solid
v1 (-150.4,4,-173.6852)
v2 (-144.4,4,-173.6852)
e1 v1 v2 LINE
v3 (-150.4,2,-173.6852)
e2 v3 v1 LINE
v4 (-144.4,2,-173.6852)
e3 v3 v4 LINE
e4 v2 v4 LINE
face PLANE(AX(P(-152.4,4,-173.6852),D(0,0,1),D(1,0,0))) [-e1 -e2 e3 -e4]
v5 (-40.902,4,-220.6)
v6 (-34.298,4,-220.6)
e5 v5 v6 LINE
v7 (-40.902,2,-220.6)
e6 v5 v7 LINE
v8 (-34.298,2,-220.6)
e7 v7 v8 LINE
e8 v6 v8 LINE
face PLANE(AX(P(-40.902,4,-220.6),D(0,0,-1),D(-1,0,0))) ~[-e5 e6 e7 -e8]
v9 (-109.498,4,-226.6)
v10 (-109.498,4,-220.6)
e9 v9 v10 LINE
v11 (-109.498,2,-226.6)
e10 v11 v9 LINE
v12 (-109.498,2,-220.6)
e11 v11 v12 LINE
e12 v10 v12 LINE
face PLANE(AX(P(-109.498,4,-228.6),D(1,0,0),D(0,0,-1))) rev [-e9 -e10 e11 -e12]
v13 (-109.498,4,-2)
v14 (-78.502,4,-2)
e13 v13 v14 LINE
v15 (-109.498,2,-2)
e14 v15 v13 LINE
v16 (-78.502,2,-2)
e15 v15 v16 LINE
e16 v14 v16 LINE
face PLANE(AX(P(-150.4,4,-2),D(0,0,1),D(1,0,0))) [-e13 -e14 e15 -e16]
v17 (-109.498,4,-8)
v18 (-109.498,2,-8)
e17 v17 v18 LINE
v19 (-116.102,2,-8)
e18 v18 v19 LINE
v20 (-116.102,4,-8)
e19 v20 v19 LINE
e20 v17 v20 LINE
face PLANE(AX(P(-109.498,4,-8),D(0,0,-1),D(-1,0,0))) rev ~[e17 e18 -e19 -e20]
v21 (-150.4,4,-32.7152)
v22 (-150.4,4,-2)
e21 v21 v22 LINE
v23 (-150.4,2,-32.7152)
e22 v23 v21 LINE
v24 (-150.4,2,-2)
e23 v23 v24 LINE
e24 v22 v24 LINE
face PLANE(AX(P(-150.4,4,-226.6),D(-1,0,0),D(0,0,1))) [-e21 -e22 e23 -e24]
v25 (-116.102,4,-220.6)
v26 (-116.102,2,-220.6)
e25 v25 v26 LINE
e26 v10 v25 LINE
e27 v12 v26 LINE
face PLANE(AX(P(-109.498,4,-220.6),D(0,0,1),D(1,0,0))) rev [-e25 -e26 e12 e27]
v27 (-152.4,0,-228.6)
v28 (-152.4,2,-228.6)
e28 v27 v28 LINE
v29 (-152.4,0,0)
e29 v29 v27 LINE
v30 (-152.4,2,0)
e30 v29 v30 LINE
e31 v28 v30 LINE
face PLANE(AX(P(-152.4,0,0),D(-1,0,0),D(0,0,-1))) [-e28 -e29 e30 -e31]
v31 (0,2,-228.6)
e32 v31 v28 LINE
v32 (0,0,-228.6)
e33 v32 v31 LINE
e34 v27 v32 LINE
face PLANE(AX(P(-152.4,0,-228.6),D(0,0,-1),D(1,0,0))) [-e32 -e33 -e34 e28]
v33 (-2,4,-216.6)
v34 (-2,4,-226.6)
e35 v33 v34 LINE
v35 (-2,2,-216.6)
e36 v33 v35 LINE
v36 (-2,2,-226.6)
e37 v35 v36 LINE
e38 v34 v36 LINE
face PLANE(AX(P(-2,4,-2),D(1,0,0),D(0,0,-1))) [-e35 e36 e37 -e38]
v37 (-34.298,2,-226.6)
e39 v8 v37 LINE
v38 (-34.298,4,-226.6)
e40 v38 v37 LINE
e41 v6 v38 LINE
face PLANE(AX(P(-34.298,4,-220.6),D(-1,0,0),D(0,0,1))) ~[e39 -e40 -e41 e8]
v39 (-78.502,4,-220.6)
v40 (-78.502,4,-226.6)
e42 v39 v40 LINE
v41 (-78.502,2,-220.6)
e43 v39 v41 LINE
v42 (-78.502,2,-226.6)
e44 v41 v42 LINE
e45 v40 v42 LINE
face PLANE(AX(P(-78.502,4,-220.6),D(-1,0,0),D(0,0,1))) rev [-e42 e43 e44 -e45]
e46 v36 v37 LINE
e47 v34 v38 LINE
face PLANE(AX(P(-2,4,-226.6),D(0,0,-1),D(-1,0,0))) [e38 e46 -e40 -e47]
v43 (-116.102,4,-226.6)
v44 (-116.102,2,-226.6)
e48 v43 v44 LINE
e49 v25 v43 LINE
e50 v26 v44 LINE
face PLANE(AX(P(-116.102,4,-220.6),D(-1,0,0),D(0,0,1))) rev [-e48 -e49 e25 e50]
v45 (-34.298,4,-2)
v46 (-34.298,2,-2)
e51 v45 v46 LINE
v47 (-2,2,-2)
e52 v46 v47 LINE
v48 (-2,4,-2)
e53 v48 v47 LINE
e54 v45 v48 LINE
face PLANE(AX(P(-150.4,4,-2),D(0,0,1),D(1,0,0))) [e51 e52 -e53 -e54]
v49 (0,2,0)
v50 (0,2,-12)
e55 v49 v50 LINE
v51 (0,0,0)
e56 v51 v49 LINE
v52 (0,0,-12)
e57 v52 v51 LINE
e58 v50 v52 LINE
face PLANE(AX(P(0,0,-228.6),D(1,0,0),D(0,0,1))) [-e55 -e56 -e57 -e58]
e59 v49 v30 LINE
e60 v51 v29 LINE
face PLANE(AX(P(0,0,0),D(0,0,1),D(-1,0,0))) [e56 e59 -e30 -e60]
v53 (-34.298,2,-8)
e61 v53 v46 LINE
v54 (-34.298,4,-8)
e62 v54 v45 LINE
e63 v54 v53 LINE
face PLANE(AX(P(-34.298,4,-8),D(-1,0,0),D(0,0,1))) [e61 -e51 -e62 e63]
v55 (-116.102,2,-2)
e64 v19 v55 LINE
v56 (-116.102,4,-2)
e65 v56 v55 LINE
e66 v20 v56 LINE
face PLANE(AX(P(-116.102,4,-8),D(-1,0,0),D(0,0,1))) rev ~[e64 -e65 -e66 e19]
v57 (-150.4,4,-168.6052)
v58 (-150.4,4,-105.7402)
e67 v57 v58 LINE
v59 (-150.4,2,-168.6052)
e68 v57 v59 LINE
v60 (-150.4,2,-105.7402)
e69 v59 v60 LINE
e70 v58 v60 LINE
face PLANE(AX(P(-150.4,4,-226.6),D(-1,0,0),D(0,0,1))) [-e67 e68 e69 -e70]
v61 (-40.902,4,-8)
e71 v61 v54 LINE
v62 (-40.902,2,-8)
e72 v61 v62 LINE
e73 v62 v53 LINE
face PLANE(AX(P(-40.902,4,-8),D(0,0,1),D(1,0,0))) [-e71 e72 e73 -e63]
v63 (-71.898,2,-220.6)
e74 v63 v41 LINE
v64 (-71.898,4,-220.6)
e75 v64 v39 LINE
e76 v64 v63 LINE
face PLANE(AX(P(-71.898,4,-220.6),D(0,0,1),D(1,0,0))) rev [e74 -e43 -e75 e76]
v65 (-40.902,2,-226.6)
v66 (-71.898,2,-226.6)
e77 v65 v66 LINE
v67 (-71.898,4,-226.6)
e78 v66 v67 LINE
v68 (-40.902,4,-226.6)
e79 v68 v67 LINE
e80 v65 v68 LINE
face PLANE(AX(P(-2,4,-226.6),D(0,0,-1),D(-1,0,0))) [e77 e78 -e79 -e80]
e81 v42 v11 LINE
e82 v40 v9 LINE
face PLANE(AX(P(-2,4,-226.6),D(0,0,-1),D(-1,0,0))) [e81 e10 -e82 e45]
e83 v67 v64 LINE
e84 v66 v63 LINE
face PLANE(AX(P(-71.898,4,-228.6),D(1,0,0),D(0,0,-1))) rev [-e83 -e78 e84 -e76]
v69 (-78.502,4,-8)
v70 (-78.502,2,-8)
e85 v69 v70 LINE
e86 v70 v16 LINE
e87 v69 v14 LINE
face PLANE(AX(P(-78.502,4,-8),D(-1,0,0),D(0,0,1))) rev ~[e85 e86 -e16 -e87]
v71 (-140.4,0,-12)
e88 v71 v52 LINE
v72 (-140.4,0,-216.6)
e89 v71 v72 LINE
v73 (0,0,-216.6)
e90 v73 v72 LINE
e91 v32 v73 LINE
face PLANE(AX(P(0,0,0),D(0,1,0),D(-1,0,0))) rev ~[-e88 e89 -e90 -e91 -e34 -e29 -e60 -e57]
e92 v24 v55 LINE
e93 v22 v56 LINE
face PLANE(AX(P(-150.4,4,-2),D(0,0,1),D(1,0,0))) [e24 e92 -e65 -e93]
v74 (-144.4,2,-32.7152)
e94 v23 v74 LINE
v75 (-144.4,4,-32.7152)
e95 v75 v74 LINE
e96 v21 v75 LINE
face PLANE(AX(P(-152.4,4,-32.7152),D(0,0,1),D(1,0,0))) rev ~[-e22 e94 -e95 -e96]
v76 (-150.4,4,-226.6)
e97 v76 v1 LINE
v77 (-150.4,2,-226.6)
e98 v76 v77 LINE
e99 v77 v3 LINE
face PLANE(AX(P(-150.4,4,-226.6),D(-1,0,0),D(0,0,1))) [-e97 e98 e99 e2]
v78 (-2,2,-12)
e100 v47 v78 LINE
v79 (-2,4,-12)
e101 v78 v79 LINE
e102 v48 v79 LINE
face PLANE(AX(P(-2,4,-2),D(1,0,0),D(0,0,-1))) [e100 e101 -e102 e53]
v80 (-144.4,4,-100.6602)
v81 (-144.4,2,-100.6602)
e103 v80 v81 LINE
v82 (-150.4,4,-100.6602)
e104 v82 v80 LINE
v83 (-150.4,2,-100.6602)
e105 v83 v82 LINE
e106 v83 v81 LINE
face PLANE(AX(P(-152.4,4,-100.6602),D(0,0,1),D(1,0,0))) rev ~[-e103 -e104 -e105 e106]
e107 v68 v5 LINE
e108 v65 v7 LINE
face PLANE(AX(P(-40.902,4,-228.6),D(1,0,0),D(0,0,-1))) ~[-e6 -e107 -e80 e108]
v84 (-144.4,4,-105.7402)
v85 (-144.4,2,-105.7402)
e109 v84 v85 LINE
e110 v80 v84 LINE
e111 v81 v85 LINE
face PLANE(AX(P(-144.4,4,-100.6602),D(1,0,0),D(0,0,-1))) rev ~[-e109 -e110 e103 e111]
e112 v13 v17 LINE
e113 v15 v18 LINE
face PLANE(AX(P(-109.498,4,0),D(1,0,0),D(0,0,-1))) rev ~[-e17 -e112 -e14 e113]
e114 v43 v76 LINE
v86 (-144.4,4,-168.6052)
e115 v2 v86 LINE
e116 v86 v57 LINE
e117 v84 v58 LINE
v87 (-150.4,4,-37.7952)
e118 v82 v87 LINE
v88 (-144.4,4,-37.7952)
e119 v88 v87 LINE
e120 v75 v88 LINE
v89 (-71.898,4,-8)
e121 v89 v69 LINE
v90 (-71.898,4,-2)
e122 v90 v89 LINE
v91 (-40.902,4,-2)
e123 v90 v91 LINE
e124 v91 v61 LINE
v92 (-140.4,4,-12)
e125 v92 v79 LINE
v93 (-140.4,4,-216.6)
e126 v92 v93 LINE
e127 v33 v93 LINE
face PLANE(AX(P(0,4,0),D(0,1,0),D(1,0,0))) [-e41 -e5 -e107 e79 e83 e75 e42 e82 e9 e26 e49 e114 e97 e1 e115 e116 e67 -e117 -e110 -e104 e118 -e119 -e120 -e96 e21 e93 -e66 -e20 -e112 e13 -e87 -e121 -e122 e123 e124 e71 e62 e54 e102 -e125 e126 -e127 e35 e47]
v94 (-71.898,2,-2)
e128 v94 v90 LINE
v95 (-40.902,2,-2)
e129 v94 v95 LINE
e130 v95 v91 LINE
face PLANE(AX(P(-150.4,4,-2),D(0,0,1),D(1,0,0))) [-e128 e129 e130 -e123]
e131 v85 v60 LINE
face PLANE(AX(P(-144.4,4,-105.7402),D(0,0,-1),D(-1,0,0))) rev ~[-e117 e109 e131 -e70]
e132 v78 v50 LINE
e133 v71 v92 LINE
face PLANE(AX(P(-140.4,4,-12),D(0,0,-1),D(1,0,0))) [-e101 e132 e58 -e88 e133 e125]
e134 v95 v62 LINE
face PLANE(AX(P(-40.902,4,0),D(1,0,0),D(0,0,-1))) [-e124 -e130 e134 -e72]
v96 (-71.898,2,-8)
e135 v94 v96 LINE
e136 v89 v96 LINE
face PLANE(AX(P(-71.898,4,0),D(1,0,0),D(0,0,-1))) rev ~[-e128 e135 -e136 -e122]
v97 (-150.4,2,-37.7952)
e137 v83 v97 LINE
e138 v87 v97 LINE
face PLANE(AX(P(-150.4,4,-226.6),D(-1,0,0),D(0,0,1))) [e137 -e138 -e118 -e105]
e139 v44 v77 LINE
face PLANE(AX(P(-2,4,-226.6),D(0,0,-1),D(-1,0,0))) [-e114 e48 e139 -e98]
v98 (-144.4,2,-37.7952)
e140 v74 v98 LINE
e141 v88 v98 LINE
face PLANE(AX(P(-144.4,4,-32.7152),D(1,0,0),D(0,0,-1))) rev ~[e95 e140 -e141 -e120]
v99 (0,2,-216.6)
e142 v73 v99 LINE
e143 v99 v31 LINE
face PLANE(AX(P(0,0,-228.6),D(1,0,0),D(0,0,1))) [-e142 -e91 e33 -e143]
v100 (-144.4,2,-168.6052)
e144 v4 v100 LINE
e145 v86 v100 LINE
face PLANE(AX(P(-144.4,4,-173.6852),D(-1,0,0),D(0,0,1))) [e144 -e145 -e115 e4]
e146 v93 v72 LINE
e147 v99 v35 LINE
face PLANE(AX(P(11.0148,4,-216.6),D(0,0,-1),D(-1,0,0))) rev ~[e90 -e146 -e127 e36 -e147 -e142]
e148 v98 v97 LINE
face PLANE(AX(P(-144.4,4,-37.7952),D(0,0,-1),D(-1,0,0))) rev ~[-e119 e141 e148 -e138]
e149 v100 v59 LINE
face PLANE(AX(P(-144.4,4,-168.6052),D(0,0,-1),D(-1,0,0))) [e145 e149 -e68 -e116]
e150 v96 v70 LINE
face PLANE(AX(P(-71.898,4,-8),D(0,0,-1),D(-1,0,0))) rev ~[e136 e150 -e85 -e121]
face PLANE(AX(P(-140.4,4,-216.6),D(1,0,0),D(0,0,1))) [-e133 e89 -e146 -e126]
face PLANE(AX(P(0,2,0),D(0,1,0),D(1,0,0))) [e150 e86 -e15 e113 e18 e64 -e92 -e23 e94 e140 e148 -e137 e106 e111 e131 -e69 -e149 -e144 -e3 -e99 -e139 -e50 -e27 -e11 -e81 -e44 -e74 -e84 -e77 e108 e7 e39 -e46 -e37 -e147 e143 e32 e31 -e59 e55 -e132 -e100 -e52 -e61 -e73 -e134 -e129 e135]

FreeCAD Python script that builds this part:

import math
import FreeCAD as App
import Part
import Sketcher


def add_polygon(sketch, points):
    """Adds a closed chain of lines whose ends are joined by coincident constraints."""
    first, n = sketch.GeometryCount, len(points)
    for a, b in zip(points, points[1:] + points[:1]):
        sketch.addGeometry(Part.LineSegment(App.Vector(*a, 0), App.Vector(*b, 0)), False)
    for i in range(n):
        sketch.addConstraint(Sketcher.Constraint("Coincident", first + i, 2, first + (i + 1) % n, 1))

doc = App.newDocument("Part")
body = doc.addObject("PartDesign::Body", "Body")

# Sketch on XZ plane
sketch1 = body.newObject("Sketcher::SketchObject", "Sketch")
sketch1.AttachmentSupport = (doc.getObject("XZ_Plane"), [""])
sketch1.MapMode = "FlatFace"
add_polygon(sketch1, [(-152, 0), (0, 0), (0, -229), (-152, -229)])  # lines 0-3
sketch1.addConstraint([
    Sketcher.Constraint("Horizontal", 0),
    Sketcher.Constraint("Vertical", 1),
    Sketcher.Constraint("Horizontal", 2),
    Sketcher.Constraint("Vertical", 3),
    Sketcher.Constraint("Coincident", 0, 2, -1, 1),
    Sketcher.Constraint("DistanceX", 0, 1, 0, 2, 152.4),
    Sketcher.Constraint("DistanceY", 1, 2, 1, 1, 228.6),
])
pad1 = body.newObject("PartDesign::Pad", "Pad")
pad1.Profile = sketch1
pad1.Length = 4
pad1.Reversed = True

# Sketch on XZ plane
sketch2 = body.newObject("Sketcher::SketchObject", "Sketch001")
sketch2.AttachmentSupport = (doc.getObject("XZ_Plane"), [""])
sketch2.MapMode = "FlatFace"
sketch2.AttachmentOffset = App.Placement(App.Vector(0, 0, -4), App.Rotation())
sketch2.addGeometry([
    Part.Circle(App.Vector(-110.9, -12.5, 0), App.Vector(0, 0, 1), 3.2),
    Part.Circle(App.Vector(-110.9, -141.5, 0), App.Vector(0, 0, 1), 3.2),
    Part.Circle(App.Vector(-62.9, -141.5, 0), App.Vector(0, 0, 1), 3.2),
    Part.Circle(App.Vector(-62.9, -12.5, 0), App.Vector(0, 0, 1), 3.2),
], False)
sketch2.addConstraint([
    Sketcher.Constraint("Equal", 0, 1),
    Sketcher.Constraint("Equal", 1, 2),
    Sketcher.Constraint("Equal", 2, 3),
    Sketcher.Constraint("Horizontal", 1, 3, 2, 3),
    Sketcher.Constraint("Horizontal", 0, 3, 3, 3),
    Sketcher.Constraint("Vertical", 0, 3, 1, 3),
    Sketcher.Constraint("Vertical", 2, 3, 3, 3),
    Sketcher.Constraint("Diameter", 0, 6.5),
    Sketcher.Constraint("DistanceY", 1, 3, 0, 3, 129.0),
    Sketcher.Constraint("DistanceX", 1, 3, 2, 3, 48.0),
    Sketcher.Constraint("DistanceY", 0, 3, -1, 1, 12.5),
    Sketcher.Constraint("DistanceX", 0, 3, -1, 1, 110.934),
])
pad2 = body.newObject("PartDesign::Pad", "Pad001")
pad2.Profile = sketch2
pad2.Length = 4
pad2.Reversed = True

# Sketch on XZ plane
sketch3 = body.newObject("Sketcher::SketchObject", "Sketch002")
sketch3.AttachmentSupport = (doc.getObject("XZ_Plane"), [""])
sketch3.MapMode = "FlatFace"
sketch3.AttachmentOffset = App.Placement(App.Vector(0, 0, -8), App.Rotation())
sketch3.addGeometry([
    Part.Circle(App.Vector(-110.9, -12.5, 0), App.Vector(0, 0, 1), 1.2),
    Part.Circle(App.Vector(-110.9, -141.5, 0), App.Vector(0, 0, 1), 1.2),
], False)
sketch3.addConstraint([
    Sketcher.Constraint("Equal", 0, 1),
    Sketcher.Constraint("Vertical", 0, 3, 1, 3),
    Sketcher.Constraint("Diameter", 0, 2.5),
    Sketcher.Constraint("DistanceY", 1, 3, 0, 3, 129.0),
    Sketcher.Constraint("DistanceY", 0, 3, -1, 1, 12.5),
    Sketcher.Constraint("DistanceX", 0, 3, -1, 1, 110.934),
])
pad3 = body.newObject("PartDesign::Pad", "Pad002")
pad3.Profile = sketch3
pad3.Length = 5
pad3.Reversed = True

# Sketch on XZ plane
sketch4 = body.newObject("Sketcher::SketchObject", "Sketch003")
sketch4.AttachmentSupport = (doc.getObject("XZ_Plane"), [""])
sketch4.MapMode = "FlatFace"
sketch4.AttachmentOffset = App.Placement(App.Vector(0, 0, -4), App.Rotation())
sketch4.addGeometry([
    Part.Circle(App.Vector(-87.9, -154.5, 0), App.Vector(0, 0, 1), 3.2),
    Part.Circle(App.Vector(-110.9, -154.5, 0), App.Vector(0, 0, 1), 3.2),
    Part.Circle(App.Vector(-110.9, -212.5, 0), App.Vector(0, 0, 1), 3.2),
    Part.Circle(App.Vector(-87.9, -212.5, 0), App.Vector(0, 0, 1), 3.2),
], False)
sketch4.addConstraint([
    Sketcher.Constraint("Equal", 0, 1),
    Sketcher.Constraint("Equal", 1, 2),
    Sketcher.Constraint("Equal", 2, 3),
    Sketcher.Constraint("Horizontal", 0, 3, 1, 3),
    Sketcher.Constraint("Horizontal", 2, 3, 3, 3),
    Sketcher.Constraint("Vertical", 1, 3, 2, 3),
    Sketcher.Constraint("Vertical", 0, 3, 3, 3),
    Sketcher.Constraint("Diameter", 0, 6.5),
    Sketcher.Constraint("DistanceX", 1, 3, 0, 3, 23.0),
    Sketcher.Constraint("DistanceY", 2, 3, 1, 3, 58.0),
    Sketcher.Constraint("DistanceY", 0, 3, -1, 1, 154.5),
    Sketcher.Constraint("DistanceX", 0, 3, -1, 1, 87.934),
])
pad4 = body.newObject("PartDesign::Pad", "Pad003")
pad4.Profile = sketch4
pad4.Length = 4
pad4.Reversed = True

# Sketch on XZ plane
sketch5 = body.newObject("Sketcher::SketchObject", "Sketch004")
sketch5.AttachmentSupport = (doc.getObject("XZ_Plane"), [""])
sketch5.MapMode = "FlatFace"
sketch5.AttachmentOffset = App.Placement(App.Vector(0, 0, -8), App.Rotation())
sketch5.addGeometry([
    Part.Circle(App.Vector(-110.9, -212.5, 0), App.Vector(0, 0, 1), 1.2),
    Part.Circle(App.Vector(-87.9, -154.5, 0), App.Vector(0, 0, 1), 1.2),
], False)
sketch5.addConstraint([
    Sketcher.Constraint("Equal", 0, 1),
    Sketcher.Constraint("Diameter", 0, 2.5),
    Sketcher.Constraint("DistanceX", 0, 3, 1, 3, 23.0),
    Sketcher.Constraint("DistanceY", 0, 3, 1, 3, 58.0),
    Sketcher.Constraint("DistanceY", 0, 3, -1, 1, 212.5),
    Sketcher.Constraint("DistanceX", 0, 3, -1, 1, 110.934),
])
pad5 = body.newObject("PartDesign::Pad", "Pad004")
pad5.Profile = sketch5
pad5.Length = 5
pad5.Reversed = True

# Sketch on XZ plane
sketch6 = body.newObject("Sketcher::SketchObject", "Sketch005")
sketch6.AttachmentSupport = (doc.getObject("XZ_Plane"), [""])
sketch6.MapMode = "FlatFace"
sketch6.AttachmentOffset = App.Placement(App.Vector(0, 0, -4), App.Rotation())
add_polygon(sketch6, [(-55, -142), (-45, -142), (-45, -152), (-55, -152)])  # lines 0-3
add_polygon(sketch6, [(-35, -152), (-35, -142), (-25, -142), (-25, -152)])  # lines 4-7
sketch6.addConstraint([
    Sketcher.Constraint("Horizontal", 0),
    Sketcher.Constraint("Vertical", 1),
    Sketcher.Constraint("Horizontal", 2),
    Sketcher.Constraint("Vertical", 3),
    Sketcher.Constraint("Vertical", 4),
    Sketcher.Constraint("Horizontal", 5),
    Sketcher.Constraint("Vertical", 6),
    Sketcher.Constraint("Horizontal", 7),
    Sketcher.Constraint("Horizontal", 3, 2, 4, 2),
    Sketcher.Constraint("Horizontal", 2, 2, 6, 2),
    Sketcher.Constraint("Equal", 2, 5),
    Sketcher.Constraint("Equal", 7, 1),
    Sketcher.Constraint("DistanceX", 0, 1, 0, 2, 10.0),
    Sketcher.Constraint("DistanceX", 0, 2, -1, 1, 45.0),
    Sketcher.Constraint("DistanceX", 4, 2, -1, 1, 34.68),
    Sketcher.Constraint("DistanceY", 0, 2, -1, 1, 142.425),
])
pad6 = body.newObject("PartDesign::Pad", "Pad005")
pad6.Profile = sketch6
pad6.Length = 5
pad6.Reversed = True

# Sketch on XZ plane
sketch7 = body.newObject("Sketcher::SketchObject", "Sketch006")
sketch7.AttachmentSupport = (doc.getObject("XZ_Plane"), [""])
sketch7.MapMode = "FlatFace"
sketch7.AttachmentOffset = App.Placement(App.Vector(0, 0, -9), App.Rotation())
sketch7.addGeometry([
    Part.Circle(App.Vector(-50, -147.4, 0), App.Vector(0, 0, 1), 2.2),
    Part.Circle(App.Vector(-29.7, -147.4, 0), App.Vector(0, 0, 1), 2.2),
], False)
sketch7.addConstraint([
    Sketcher.Constraint("Equal", 0, 1),
    Sketcher.Constraint("Horizontal", 0, 3, 1, 3),
    Sketcher.Constraint("Diameter", 0, 4.5),
    Sketcher.Constraint("DistanceX", 0, 3, -1, 1, 50.0),
    Sketcher.Constraint("DistanceX", 1, 3, -1, 1, 29.68),
    Sketcher.Constraint("DistanceY", 0, 3, -1, 1, 147.425),
])
pocket1 = body.newObject("PartDesign::Pocket", "Pocket")
pocket1.Profile = sketch7
pocket1.Length = 5
pocket1.Reversed = True

# Sketch on XZ plane
sketch8 = body.newObject("Sketcher::SketchObject", "Sketch007")
sketch8.AttachmentSupport = (doc.getObject("XZ_Plane"), [""])
sketch8.MapMode = "FlatFace"
sketch8.AttachmentOffset = App.Placement(App.Vector(0, 0, -4), App.Rotation())
add_polygon(sketch8, [(-55, -122), (-55, -12), (-9, -12), (-9, -122)])  # lines 0-3
add_polygon(sketch8, [(-53, -14), (-53, -120), (-11, -120), (-11, -14)])  # lines 4-7
sketch8.addConstraint([
    Sketcher.Constraint("Vertical", 0),
    Sketcher.Constraint("Horizontal", 1),
    Sketcher.Constraint("Vertical", 2),
    Sketcher.Constraint("Horizontal", 3),
    Sketcher.Constraint("Vertical", 4),
    Sketcher.Constraint("Horizontal", 5),
    Sketcher.Constraint("Vertical", 6),
    Sketcher.Constraint("Horizontal", 7),
    Sketcher.Constraint("DistanceX", 3, 2, 4, 2, 1.6),
    Sketcher.Constraint("DistanceY", 3, 2, 4, 2, 1.6),
    Sketcher.Constraint("DistanceX", 5, 2, 2, 2, 1.6),
    Sketcher.Constraint("DistanceY", 6, 2, 1, 2, 1.6),
    Sketcher.Constraint("DistanceX", 1, 1, 1, 2, 46.0),
    Sketcher.Constraint("DistanceX", 0, 2, -1, 1, 55.0),
    Sketcher.Constraint("DistanceY", 0, 1, 0, 2, 109.25),
    Sketcher.Constraint("DistanceY", 0, 2, -1, 1, 12.5),
])
pad7 = body.newObject("PartDesign::Pad", "Pad006")
pad7.Profile = sketch8
pad7.Length = 3
pad7.Reversed = True

# Sketch on XZ plane
sketch9 = body.newObject("Sketcher::SketchObject", "Sketch008")
sketch9.AttachmentSupport = (doc.getObject("XZ_Plane"), [""])
sketch9.MapMode = "FlatFace"
sketch9.AttachmentOffset = App.Placement(App.Vector(0, 0, -4), App.Rotation())
add_polygon(sketch9, [(-56.6, -10.9), (-51.6, -10.9), (-51.6, -12.5), (-55, -12.5), (-55, -15.9), (-56.6, -15.9)])  # lines 0-5
add_polygon(sketch9, [(-7.4, -118.3), (-7.4, -123.3), (-12.4, -123.3), (-12.4, -121.8), (-9, -121.8), (-9, -118.3)])  # lines 6-11
sketch9.addConstraint([
    Sketcher.Constraint("Horizontal", 0),
    Sketcher.Constraint("Vertical", 1),
    Sketcher.Constraint("Horizontal", 2),
    Sketcher.Constraint("Vertical", 3),
    Sketcher.Constraint("Horizontal", 4),
    Sketcher.Constraint("Vertical", 5),
    Sketcher.Constraint("Vertical", 6),
    Sketcher.Constraint("Horizontal", 7),
    Sketcher.Constraint("Vertical", 8),
    Sketcher.Constraint("Horizontal", 9),
    Sketcher.Constraint("Vertical", 10),
    Sketcher.Constraint("Horizontal", 11),
    Sketcher.Constraint("Equal", 0, 7),
    Sketcher.Constraint("Equal", 2, 9),
    Sketcher.Constraint("Equal", 11, 1),
    Sketcher.Constraint("Equal", 9, 3),
    Sketcher.Constraint("Equal", 5, 6),
    Sketcher.Constraint("Equal", 1, 8),
    Sketcher.Constraint("DistanceX", 0, 1, 0, 2, 5.0),
    Sketcher.Constraint("DistanceX", 4, 2, 4, 1, 1.6),
    Sketcher.Constraint("DistanceX", 2, 2, -1, 1, 55.0),
    Sketcher.Constraint("DistanceX", 9, 2, -1, 1, 9.0),
    Sketcher.Constraint("DistanceY", 0, 2, -1, 1, 10.9),
    Sketcher.Constraint("DistanceY", 6, 2, -1, 1, 123.35),
])
pad8 = body.newObject("PartDesign::Pad", "Pad007")
pad8.Profile = sketch9
pad8.Length = 4.5
pad8.Reversed = True

# Sketch on XZ plane
sketch10 = body.newObject("Sketcher::SketchObject", "Sketch009")
sketch10.AttachmentSupport = (doc.getObject("XZ_Plane"), [""])
sketch10.MapMode = "FlatFace"
sketch10.AttachmentOffset = App.Placement(App.Vector(0, 0, -4), App.Rotation())
add_polygon(sketch10, [(-59.9, -179.1), (-59.9, -224.6), (-61.9, -224.6), (-61.9, -177.1), (-4, -177.1), (-4, -179.1)])  # lines 0-5
sketch10.addConstraint([
    Sketcher.Constraint("Vertical", 0),
    Sketcher.Constraint("Horizontal", 1),
    Sketcher.Constraint("Vertical", 2),
    Sketcher.Constraint("Horizontal", 3),
    Sketcher.Constraint("Vertical", 4),
    Sketcher.Constraint("Horizontal", 5),
    Sketcher.Constraint("Equal", 1, 4),
    Sketcher.Constraint("DistanceX", 1, 2, 1, 1, 2.0),
    Sketcher.Constraint("DistanceX", 0, 2, -1, 1, 59.92),
    Sketcher.Constraint("DistanceY", 0, 2, 0, 1, 45.5),
    Sketcher.Constraint("DistanceX", 3, 2, -1, 1, 4.0),
    Sketcher.Constraint("DistanceY", 0, 2, -1, 1, 224.6),
])
pad9 = body.newObject("PartDesign::Pad", "Pad008")
pad9.Profile = sketch10
pad9.Length = 12
pad9.Reversed = True

# Sketch on XZ plane
sketch11 = body.newObject("Sketcher::SketchObject", "Sketch010")
sketch11.AttachmentSupport = (doc.getObject("XZ_Plane"), [""])
sketch11.MapMode = "FlatFace"
sketch11.AttachmentOffset = App.Placement(App.Vector(0, 0, -4), App.Rotation())
sketch11.addGeometry(Part.LineSegment(App.Vector(-64.18, -13.75, 0), App.Vector(-61.68, -13.75, 0)), False)  # 0
sketch11.addGeometry(Part.LineSegment(App.Vector(-61.68, -13.75, 0), App.Vector(-61.68, -142.75, 0)), False)  # 1
sketch11.addGeometry(Part.LineSegment(App.Vector(-61.68, -142.75, 0), App.Vector(-112.68, -142.75, 0)), False)  # 2
sketch11.addGeometry(Part.LineSegment(App.Vector(-112.68, -142.75, 0), App.Vector(-112.68, -140.25, 0)), False)  # 3
sketch11.addGeometry(Part.LineSegment(App.Vector(-112.68, -140.25, 0), App.Vector(-112.18, -140.25, 0)), False)  # 4
sketch11.addGeometry(Part.LineSegment(App.Vector(-112.18, -140.25, 0), App.Vector(-112.18, -12.5, 0)), False)  # 5
sketch11.addGeometry(Part.ArcOfCircle(Part.Circle(App.Vector(-110.93, -12.5, 0), App.Vector(0, 0, 1), 1.25), math.radians(180), math.radians(450)), False)  # 6
sketch11.addGeometry(Part.LineSegment(App.Vector(-110.93, -11.25, 0), App.Vector(-64.18, -11.25, 0)), False)  # 7
sketch11.addGeometry(Part.LineSegment(App.Vector(-64.18, -11.25, 0), App.Vector(-64.18, -13.75, 0)), False)  # 8
add_polygon(sketch11, [(-64.18, -13.75), (-109.68, -13.75), (-109.68, -140.25), (-64.18, -140.25)])  # lines 9-12
sketch11.addConstraint([
    Sketcher.Constraint("Coincident", 0, 2, 1, 1),
    Sketcher.Constraint("Coincident", 1, 2, 2, 1),
    Sketcher.Constraint("Coincident", 2, 2, 3, 1),
    Sketcher.Constraint("Coincident", 3, 2, 4, 1),
    Sketcher.Constraint("Coincident", 4, 2, 5, 1),
    Sketcher.Constraint("Tangent", 5, 2, 6, 1),
    Sketcher.Constraint("Tangent", 6, 2, 7, 1),
    Sketcher.Constraint("Coincident", 7, 2, 8, 1),
    Sketcher.Constraint("Coincident", 8, 2, 0, 1),
    Sketcher.Constraint("Horizontal", 0),
    Sketcher.Constraint("Vertical", 1),
    Sketcher.Constraint("Horizontal", 2),
    Sketcher.Constraint("Vertical", 3),
    Sketcher.Constraint("Horizontal", 4),
    Sketcher.Constraint("Vertical", 5),
    Sketcher.Constraint("Horizontal", 7),
    Sketcher.Constraint("Vertical", 8),
    Sketcher.Constraint("Horizontal", 9),
    Sketcher.Constraint("Vertical", 10),
    Sketcher.Constraint("Horizontal", 11),
    Sketcher.Constraint("Vertical", 12),
    Sketcher.Constraint("Coincident", 12, 2, 8, 2),
    Sketcher.Constraint("Horizontal", 4, 2, 10, 2),
    Sketcher.Constraint("Equal", 0, 3),
    Sketcher.Constraint("Equal", 3, 8),
    Sketcher.Constraint("DistanceY", 1, 2, 1, 1, 129.0),
    Sketcher.Constraint("Radius", 6, 1.25),
    Sketcher.Constraint("DistanceX", 0, 1, 0, 2, 2.5),
    Sketcher.Constraint("DistanceX", 9, 2, 9, 1, 45.5),
    Sketcher.Constraint("DistanceX", 5, 2, 7, 2, 48.0),
    Sketcher.Constraint("DistanceY", 6, 3, -1, 1, 12.5),
    Sketcher.Constraint("DistanceX", 2, 2, 2, 1, 50.9926),
    Sketcher.Constraint("DistanceX", 6, 3, -1, 1, 110.934),
])
pad10 = body.newObject("PartDesign::Pad", "Pad009")
pad10.Profile = sketch11
pad10.Length = 4
pad10.Reversed = True

# Sketch on XZ plane
sketch12 = body.newObject("Sketcher::SketchObject", "Sketch011")
sketch12.AttachmentSupport = (doc.getObject("XZ_Plane"), [""])
sketch12.MapMode = "FlatFace"
sketch12.AttachmentOffset = App.Placement(App.Vector(0, 0, -8), App.Rotation())
add_polygon(sketch12, [(-61.7, -125.5), (-61.7, -138.5), (-64.2, -138.5), (-64.2, -125.5)])  # lines 0-3
add_polygon(sketch12, [(-61.7, -57), (-61.7, -97), (-66.7, -97), (-66.7, -57)])  # lines 4-7
sketch12.addConstraint([
    Sketcher.Constraint("Vertical", 0),
    Sketcher.Constraint("Horizontal", 1),
    Sketcher.Constraint("Vertical", 2),
    Sketcher.Constraint("Horizontal", 3),
    Sketcher.Constraint("Vertical", 4),
    Sketcher.Constraint("Horizontal", 5),
    Sketcher.Constraint("Vertical", 6),
    Sketcher.Constraint("Horizontal", 7),
    Sketcher.Constraint("Vertical", 3, 2, 4, 2),
    Sketcher.Constraint("DistanceY", 0, 2, 0, 1, 13.0),
    Sketcher.Constraint("DistanceY", 4, 2, 4, 1, 40.0),
    Sketcher.Constraint("DistanceX", 5, 2, 5, 1, 5.0),
    Sketcher.Constraint("DistanceX", 1, 2, 1, 1, 2.5),
    Sketcher.Constraint("DistanceY", 4, 2, -1, 1, 97.0),
    Sketcher.Constraint("DistanceY", 0, 2, -1, 1, 138.5),
    Sketcher.Constraint("DistanceX", 0, 2, -1, 1, 61.684),
])
pocket2 = body.newObject("PartDesign::Pocket", "Pocket001")
pocket2.Profile = sketch12
pocket2.Length = 4
pocket2.Reversed = True

# Sketch on XZ plane
sketch13 = body.newObject("Sketcher::SketchObject", "Sketch012")
sketch13.AttachmentSupport = (doc.getObject("XZ_Plane"), [""])
sketch13.MapMode = "FlatFace"
sketch13.AttachmentOffset = App.Placement(App.Vector(0, 0, -4), App.Rotation())
add_polygon(sketch13, [(-51.6, -10.9), (-56.6, -10.9), (-56.6, -6.5), (-50.6, -6.5), (-50.6, -12.5), (-51.6, -12.5)])  # lines 0-5
add_polygon(sketch13, [(-12.4, -123.3), (-7.4, -123.3), (-7.4, -127.8), (-13.4, -127.8), (-13.4, -121.8), (-12.4, -121.8)])  # lines 6-11
sketch13.addConstraint([
    Sketcher.Constraint("Horizontal", 0),
    Sketcher.Constraint("Vertical", 1),
    Sketcher.Constraint("Horizontal", 2),
    Sketcher.Constraint("Vertical", 3),
    Sketcher.Constraint("Horizontal", 4),
    Sketcher.Constraint("Vertical", 5),
    Sketcher.Constraint("Horizontal", 6),
    Sketcher.Constraint("Vertical", 7),
    Sketcher.Constraint("Horizontal", 8),
    Sketcher.Constraint("Vertical", 9),
    Sketcher.Constraint("Horizontal", 10),
    Sketcher.Constraint("Vertical", 11),
    Sketcher.Constraint("Equal", 0, 6),
    Sketcher.Constraint("Equal", 2, 8),
    Sketcher.Constraint("Equal", 8, 3),
    Sketcher.Constraint("Equal", 1, 7),
    Sketcher.Constraint("Equal", 3, 9),
    Sketcher.Constraint("DistanceX", 2, 1, 2, 2, 6.0),
    Sketcher.Constraint("DistanceX", 4, 2, 4, 1, 1.0),
    Sketcher.Constraint("DistanceY", 1, 1, 1, 2, 4.4),
    Sketcher.Constraint("DistanceX", 0, 2, -1, 1, 56.6),
    Sketcher.Constraint("DistanceY", 0, 2, -1, 1, 10.9),
    Sketcher.Constraint("DistanceX", 6, 2, -1, 1, 7.4),
    Sketcher.Constraint("DistanceY", 6, 2, -1, 1, 123.35),
])
pad11 = body.newObject("PartDesign::Pad", "Pad010")
pad11.Profile = sketch13
pad11.Length = 4.5
pad11.Reversed = True

# Sketch on XZ plane
sketch14 = body.newObject("Sketcher::SketchObject", "Sketch013")
sketch14.AttachmentSupport = (doc.getObject("XZ_Plane"), [""])
sketch14.MapMode = "FlatFace"
sketch14.AttachmentOffset = App.Placement(App.Vector(0, 0, -8.5), App.Rotation())
sketch14.addGeometry([
    Part.Circle(App.Vector(-53.6, -9.5, 0), App.Vector(0, 0, 1), 2.2),
    Part.Circle(App.Vector(-10.4, -124.8, 0), App.Vector(0, 0, 1), 2.2),
], False)
sketch14.addConstraint([
    Sketcher.Constraint("Equal", 0, 1),
    Sketcher.Constraint("Diameter", 0, 4.5),
    Sketcher.Constraint("DistanceX", 0, 3, -1, 1, 53.6),
    Sketcher.Constraint("DistanceY", 0, 3, -1, 1, 9.5),
    Sketcher.Constraint("DistanceX", 1, 3, -1, 1, 10.4),
    Sketcher.Constraint("DistanceY", 1, 3, -1, 1, 124.75),
])
pocket3 = body.newObject("PartDesign::Pocket", "Pocket002")
pocket3.Profile = sketch14
pocket3.Length = 5
pocket3.Reversed = True

# Sketch on XZ plane
sketch15 = body.newObject("Sketcher::SketchObject", "Sketch014")
sketch15.AttachmentSupport = (doc.getObject("XZ_Plane"), [""])
sketch15.MapMode = "FlatFace"
sketch15.AttachmentOffset = App.Placement(App.Vector(0, 0, -4), App.Rotation())
add_polygon(sketch15, [(-120.9, -157.8), (-120.9, -151.2), (-110.9, -151.2), (-110.9, -157.8)])  # lines 0-3
sketch15.addGeometry(Part.Circle(App.Vector(-117.6, -154.5, 0), App.Vector(0, 0, 1), 2.2), False)  # 4
add_polygon(sketch15, [(-87.9, -215.8), (-87.9, -209.2), (-77.9, -209.2), (-77.9, -215.8)])  # lines 5-8
sketch15.addGeometry(Part.Circle(App.Vector(-81.3, -212.5, 0), App.Vector(0, 0, 1), 2.2), False)  # 9
sketch15.addConstraint([
    Sketcher.Constraint("Vertical", 0),
    Sketcher.Constraint("Horizontal", 1),
    Sketcher.Constraint("Vertical", 2),
    Sketcher.Constraint("Horizontal", 3),
    Sketcher.Constraint("Vertical", 5),
    Sketcher.Constraint("Horizontal", 6),
    Sketcher.Constraint("Vertical", 7),
    Sketcher.Constraint("Horizontal", 8),
    Sketcher.Constraint("Equal", 4, 9),
    Sketcher.Constraint("Equal", 3, 6),
    Sketcher.Constraint("Equal", 2, 5),
    Sketcher.Constraint("Diameter", 4, 4.5),
    Sketcher.Constraint("DistanceX", 1, 1, 1, 2, 10.0),
    Sketcher.Constraint("DistanceY", 0, 1, 0, 2, 6.5),
    Sketcher.Constraint("DistanceY", 9, 3, 4, 3, 58.0),
    Sketcher.Constraint("DistanceX", 2, 2, 5, 2, 23.0),
    Sketcher.Constraint("DistanceY", 5, 2, 1, 2, 58.0),
    Sketcher.Constraint("DistanceY", 4, 3, -1, 1, 154.5),
    Sketcher.Constraint("DistanceY", 0, 2, -1, 1, 151.25),
    Sketcher.Constraint("DistanceX", 4, 3, 9, 3, 36.25),
    Sketcher.Constraint("DistanceX", 4, 3, -1, 1, 117.559),
    Sketcher.Constraint("DistanceX", 0, 2, -1, 1, 120.934),
])
pad12 = body.newObject("PartDesign::Pad", "Pad011")
pad12.Profile = sketch15
pad12.Length = 4
pad12.Reversed = True

# Sketch on XZ plane
sketch16 = body.newObject("Sketcher::SketchObject", "Sketch015")
sketch16.AttachmentSupport = (doc.getObject("XZ_Plane"), [""])
sketch16.MapMode = "FlatFace"
sketch16.AttachmentOffset = App.Placement(App.Vector(0, 0, -4), App.Rotation())
sketch16.addGeometry([
    Part.Circle(App.Vector(-117.6, -154.5, 0), App.Vector(0, 0, 1), 2.2),
    Part.Circle(App.Vector(-81.3, -212.5, 0), App.Vector(0, 0, 1), 2.2),
], False)
sketch16.addConstraint([
    Sketcher.Constraint("Equal", 0, 1),
    Sketcher.Constraint("Diameter", 0, 4.5),
    Sketcher.Constraint("DistanceY", 1, 3, 0, 3, 58.0),
    Sketcher.Constraint("DistanceY", 0, 3, -1, 1, 154.5),
    Sketcher.Constraint("DistanceX", 0, 3, 1, 3, 36.25),
    Sketcher.Constraint("DistanceX", 0, 3, -1, 1, 117.559),
])
pocket4 = body.newObject("PartDesign::Pocket", "Pocket003")
pocket4.Profile = sketch16
pocket4.Length = 1
pocket4.Reversed = True

# Sketch on XZ plane
sketch17 = body.newObject("Sketcher::SketchObject", "Sketch016")
sketch17.AttachmentSupport = (doc.getObject("XZ_Plane"), [""])
sketch17.MapMode = "FlatFace"
sketch17.AttachmentOffset = App.Placement(App.Vector(0, 0, -4), App.Rotation())
add_polygon(sketch17, [(-55, -107), (-55, -114), (-63, -114), (-63, -107)])  # lines 0-3
add_polygon(sketch17, [(-55, -47), (-63, -47), (-63, -40), (-55, -40)])  # lines 4-7
sketch17.addConstraint([
    Sketcher.Constraint("Vertical", 0),
    Sketcher.Constraint("Horizontal", 1),
    Sketcher.Constraint("Vertical", 2),
    Sketcher.Constraint("Horizontal", 3),
    Sketcher.Constraint("Horizontal", 4),
    Sketcher.Constraint("Vertical", 5),
    Sketcher.Constraint("Horizontal", 6),
    Sketcher.Constraint("Vertical", 7),
    Sketcher.Constraint("Vertical", 2, 2, 4, 2),
    Sketcher.Constraint("Vertical", 3, 2, 6, 2),
    Sketcher.Constraint("Equal", 2, 5),
    Sketcher.Constraint("DistanceY", 0, 2, 0, 1, 7.0),
    Sketcher.Constraint("DistanceY", 2, 2, 4, 2, 60.0),
    Sketcher.Constraint("DistanceX", 0, 2, -1, 1, 55.0),
    Sketcher.Constraint("DistanceY", 0, 2, -1, 1, 114.0),
    Sketcher.Constraint("DistanceX", 1, 2, 1, 1, 7.934),
])
pad13 = body.newObject("PartDesign::Pad", "Pad012")
pad13.Profile = sketch17
pad13.Length = 4
pad13.Reversed = True

# Sketch on XZ plane
sketch18 = body.newObject("Sketcher::SketchObject", "Sketch017")
sketch18.AttachmentSupport = (doc.getObject("XZ_Plane"), [""])
sketch18.MapMode = "FlatFace"
sketch18.AttachmentOffset = App.Placement(App.Vector(0, 0, -8), App.Rotation())
sketch18.addGeometry([
    Part.Circle(App.Vector(-58.3, -43.5, 0), App.Vector(0, 0, 1), 2.2),
    Part.Circle(App.Vector(-58.3, -110.5, 0), App.Vector(0, 0, 1), 2.2),
], False)
sketch18.addConstraint([
    Sketcher.Constraint("Equal", 0, 1),
    Sketcher.Constraint("Vertical", 0, 3, 1, 3),
    Sketcher.Constraint("Diameter", 0, 4.5),
    Sketcher.Constraint("DistanceY", 1, 3, 0, 3, 67.0),
    Sketcher.Constraint("DistanceY", 0, 3, -1, 1, 43.5),
    Sketcher.Constraint("DistanceX", 0, 3, -1, 1, 58.342),
])
pocket5 = body.newObject("PartDesign::Pocket", "Pocket004")
pocket5.Profile = sketch18
pocket5.Length = 5
pocket5.Reversed = True

# Sketch on XZ plane
sketch19 = body.newObject("Sketcher::SketchObject", "Sketch018")
sketch19.AttachmentSupport = (doc.getObject("XZ_Plane"), [""])
sketch19.MapMode = "FlatFace"
sketch19.AttachmentOffset = App.Placement(App.Vector(0, 0, -16), App.Rotation())
add_polygon(sketch19, [(-61.9, -197.8), (-59.9, -197.8), (-59.9, -205.8), (-61.9, -205.8)])  # lines 0-3
sketch19.addConstraint([
    Sketcher.Constraint("Horizontal", 0),
    Sketcher.Constraint("Vertical", 1),
    Sketcher.Constraint("Horizontal", 2),
    Sketcher.Constraint("Vertical", 3),
    Sketcher.Constraint("DistanceY", 1, 2, 1, 1, 8.0),
    Sketcher.Constraint("DistanceX", 0, 1, 0, 2, 2.0),
    Sketcher.Constraint("DistanceX", 0, 2, -1, 1, 59.92),
    Sketcher.Constraint("DistanceY", 0, 2, -1, 1, 197.85),
])
pocket6 = body.newObject("PartDesign::Pocket", "Pocket005")
pocket6.Profile = sketch19
pocket6.Length = 12
pocket6.Reversed = True

# Sketch on XZ plane
sketch20 = body.newObject("Sketcher::SketchObject", "Sketch019")
sketch20.AttachmentSupport = (doc.getObject("XZ_Plane"), [""])
sketch20.MapMode = "FlatFace"
sketch20.AttachmentOffset = App.Placement(App.Vector(0, 0, -4), App.Rotation())
add_polygon(sketch20, [(0, -229), (-152, -229), (-152, 0), (0, 0)])  # lines 0-3
add_polygon(sketch20, [(-150, -227), (-2, -227), (-2, -2), (-150, -2)])  # lines 4-7
sketch20.addConstraint([
    Sketcher.Constraint("Horizontal", 0),
    Sketcher.Constraint("Vertical", 1),
    Sketcher.Constraint("Horizontal", 2),
    Sketcher.Constraint("Vertical", 3),
    Sketcher.Constraint("Horizontal", 4),
    Sketcher.Constraint("Vertical", 5),
    Sketcher.Constraint("Horizontal", 6),
    Sketcher.Constraint("Vertical", 7),
    Sketcher.Constraint("Coincident", 2, 2, -1, 1),
    Sketcher.Constraint("DistanceX", 4, 2, -1, 1, 2.0),
    Sketcher.Constraint("DistanceY", 5, 2, -1, 1, 2.0),
    Sketcher.Constraint("DistanceY", 3, 2, 4, 2, 2.0),
    Sketcher.Constraint("DistanceX", 1, 2, 6, 2, 2.0),
    Sketcher.Constraint("DistanceX", 0, 2, 0, 1, 152.4),
    Sketcher.Constraint("DistanceY", 1, 1, 1, 2, 228.6),
])
pocket7 = body.newObject("PartDesign::Pocket", "Pocket006")
pocket7.Profile = sketch20
pocket7.Length = 2
pocket7.Reversed = True

# Sketch on XZ plane
sketch21 = body.newObject("Sketcher::SketchObject", "Sketch020")
sketch21.AttachmentSupport = (doc.getObject("XZ_Plane"), [""])
sketch21.MapMode = "FlatFace"
sketch21.AttachmentOffset = App.Placement(App.Vector(0, 0, -4), App.Rotation())
add_polygon(sketch21, [(-41, 0), (-34, 0), (-34, -8), (-41, -8)])  # lines 0-3
add_polygon(sketch21, [(-116, 0), (-109, 0), (-109, -8), (-116, -8)])  # lines 4-7
add_polygon(sketch21, [(-79, 0), (-72, 0), (-72, -8), (-79, -8)])  # lines 8-11
sketch21.addConstraint([
    Sketcher.Constraint("Horizontal", 0),
    Sketcher.Constraint("Vertical", 1),
    Sketcher.Constraint("Horizontal", 2),
    Sketcher.Constraint("Vertical", 3),
    Sketcher.Constraint("Horizontal", 4),
    Sketcher.Constraint("Vertical", 5),
    Sketcher.Constraint("Horizontal", 6),
    Sketcher.Constraint("Vertical", 7),
    Sketcher.Constraint("Horizontal", 8),
    Sketcher.Constraint("Vertical", 9),
    Sketcher.Constraint("Horizontal", 10),
    Sketcher.Constraint("Vertical", 11),
    Sketcher.Constraint("PointOnObject", 0, 2, -1),
    Sketcher.Constraint("PointOnObject", 4, 2, -1),
    Sketcher.Constraint("PointOnObject", 8, 2, -1),
    Sketcher.Constraint("Horizontal", 2, 2, 5, 2),
    Sketcher.Constraint("Horizontal", 6, 2, 9, 2),
    Sketcher.Constraint("Equal", 2, 4),
    Sketcher.Constraint("Equal", 6, 8),
    Sketcher.Constraint("DistanceX", 0, 1, 0, 2, 6.604),
    Sketcher.Constraint("DistanceY", 1, 2, 1, 1, 8.0),
    Sketcher.Constraint("DistanceX", 4, 2, 0, 2, 75.2),
    Sketcher.Constraint("DistanceX", 8, 2, 0, 2, 37.6),
    Sketcher.Constraint("DistanceX", 0, 2, -1, 1, 34.298),
])
pocket8 = body.newObject("PartDesign::Pocket", "Pocket007")
pocket8.Profile = sketch21
pocket8.Length = 2
pocket8.Reversed = True
doc.recompute()

datumplane = body.newObject("PartDesign::Plane", "DatumPlane")
datumplane.AttachmentSupport = (doc.getObject("XY_Plane"), [""])
datumplane.MapMode = "FlatFace"
datumplane.AttachmentOffset = App.Placement(App.Vector(0, 0, -114.3), App.Rotation())
mirrored = body.newObject("PartDesign::Mirrored", "Mirrored")
mirrored.Originals = [pocket8]
mirrored.MirrorPlane = (datumplane, [""])
body.Tip = mirrored

# Sketch on XZ plane
sketch22 = body.newObject("Sketcher::SketchObject", "Sketch021")
sketch22.AttachmentSupport = (doc.getObject("XZ_Plane"), [""])
sketch22.MapMode = "FlatFace"
sketch22.AttachmentOffset = App.Placement(App.Vector(0, 0, -4), App.Rotation())
add_polygon(sketch22, [(-152, -38), (-152, -33), (-144, -33), (-144, -38)])  # lines 0-3
add_polygon(sketch22, [(-152, -106), (-152, -101), (-144, -101), (-144, -106)])  # lines 4-7
add_polygon(sketch22, [(-144, -174), (-152, -174), (-152, -169), (-144, -169)])  # lines 8-11
sketch22.addConstraint([
    Sketcher.Constraint("Vertical", 0),
    Sketcher.Constraint("Horizontal", 1),
    Sketcher.Constraint("Vertical", 2),
    Sketcher.Constraint("Horizontal", 3),
    Sketcher.Constraint("Vertical", 4),
    Sketcher.Constraint("Horizontal", 5),
    Sketcher.Constraint("Vertical", 6),
    Sketcher.Constraint("Horizontal", 7),
    Sketcher.Constraint("Horizontal", 8),
    Sketcher.Constraint("Vertical", 9),
    Sketcher.Constraint("Horizontal", 10),
    Sketcher.Constraint("Vertical", 11),
    Sketcher.Constraint("Vertical", 3, 2, 4, 2),
    Sketcher.Constraint("Vertical", 2, 2, 5, 2),
    Sketcher.Constraint("Vertical", 7, 2, 8, 2),
    Sketcher.Constraint("Vertical", 6, 2, 10, 2),
    Sketcher.Constraint("Equal", 2, 4),
    Sketcher.Constraint("Equal", 6, 9),
    Sketcher.Constraint("DistanceX", 1, 1, 1, 2, 8.0),
    Sketcher.Constraint("DistanceY", 0, 1, 0, 2, 5.08),
    Sketcher.Constraint("DistanceY", 4, 2, 3, 2, 62.865),
    Sketcher.Constraint("DistanceY", 9, 2, 7, 2, 62.865),
    Sketcher.Constraint("DistanceY", 0, 2, -1, 1, 32.7152),
    Sketcher.Constraint("DistanceX", 0, 2, -1, 1, 152.4),
])
pocket9 = body.newObject("PartDesign::Pocket", "Pocket008")
pocket9.Profile = sketch22
pocket9.Length = 2
pocket9.Reversed = True

# Sketch on XZ plane
sketch23 = body.newObject("Sketcher::SketchObject", "Sketch022")
sketch23.AttachmentSupport = (doc.getObject("XZ_Plane"), [""])
sketch23.MapMode = "FlatFace"
sketch23.AttachmentOffset = App.Placement(App.Vector(0, 0, -4), App.Rotation())
add_polygon(sketch23, [(-140, -217), (-140, -12), (-2, -12), (-2, -217)])  # lines 0-3
sketch23.addConstraint([
    Sketcher.Constraint("Vertical", 0),
    Sketcher.Constraint("Horizontal", 1),
    Sketcher.Constraint("Vertical", 2),
    Sketcher.Constraint("Horizontal", 3),
    Sketcher.Constraint("DistanceX", 1, 1, 1, 2, 138.4),
    Sketcher.Constraint("DistanceY", 0, 1, 0, 2, 204.6),
    Sketcher.Constraint("DistanceY", 0, 2, -1, 1, 12.0),
    Sketcher.Constraint("DistanceX", 1, 2, -1, 1, 2.0),
])
pocket10 = body.newObject("PartDesign::Pocket", "Pocket009")
pocket10.Profile = sketch23
pocket10.Length = 44.925
pocket10.Midplane = True

# Sketch on XZ plane
sketch24 = body.newObject("Sketcher::SketchObject", "Sketch023")
sketch24.AttachmentSupport = (doc.getObject("XZ_Plane"), [""])
sketch24.MapMode = "FlatFace"
sketch24.AttachmentOffset = App.Placement(App.Vector(0, 0, -16), App.Rotation())
add_polygon(sketch24, [(6, -232), (-156, -232), (-156, 6), (6, 6)])  # lines 0-3
sketch24.addConstraint([
    Sketcher.Constraint("Horizontal", 0),
    Sketcher.Constraint("Vertical", 1),
    Sketcher.Constraint("Horizontal", 2),
    Sketcher.Constraint("Vertical", 3),
    Sketcher.Constraint("DistanceX", 0, 2, 0, 1, 161.2596),
    Sketcher.Constraint("DistanceY", 1, 1, 1, 2, 238.5828),
    Sketcher.Constraint("DistanceY", 0, 2, -1, 1, 232.387),
    Sketcher.Constraint("DistanceX", -1, 1, 2, 2, 5.657),
])
pocket11 = body.newObject("PartDesign::Pocket", "Pocket010")
pocket11.Profile = sketch24
pocket11.Length = 12
pocket11.Reversed = True

# Sketch on XZ plane
sketch25 = body.newObject("Sketcher::SketchObject", "Sketch024")
sketch25.AttachmentSupport = (doc.getObject("XZ_Plane"), [""])
sketch25.MapMode = "FlatFace"
sketch25.AttachmentOffset = App.Placement(App.Vector(0, 0, -4), App.Rotation())
add_polygon(sketch25, [(-2, -217), (-2, -12), (11, -12), (11, -217)])  # lines 0-3
sketch25.addConstraint([
    Sketcher.Constraint("Vertical", 0),
    Sketcher.Constraint("Horizontal", 1),
    Sketcher.Constraint("Vertical", 2),
    Sketcher.Constraint("Horizontal", 3),
    Sketcher.Constraint("DistanceY", 0, 1, 0, 2, 204.6),
    Sketcher.Constraint("DistanceX", 0, 2, -1, 1, 2.0),
    Sketcher.Constraint("DistanceY", 0, 2, -1, 1, 12.0),
    Sketcher.Constraint("DistanceX", 1, 1, 1, 2, 13.0148),
])
pocket12 = body.newObject("PartDesign::Pocket", "Pocket011")
pocket12.Profile = sketch25
pocket12.Length = 10
pocket12.Reversed = True

# Sketch on XZ plane
sketch26 = body.newObject("Sketcher::SketchObject", "Sketch025")
sketch26.AttachmentSupport = (doc.getObject("XZ_Plane"), [""])
sketch26.MapMode = "FlatFace"
sketch26.AttachmentOffset = App.Placement(App.Vector(0, 0, -4), App.Rotation())
sketch26.addGeometry(Part.Circle(App.Vector(-53.6, -9.5, 0), App.Vector(0, 0, 1), 2.2), False)
sketch26.addConstraint([
    Sketcher.Constraint("Diameter", 0, 4.5),
    Sketcher.Constraint("DistanceX", 0, 3, -1, 1, 53.6),
    Sketcher.Constraint("DistanceY", 0, 3, -1, 1, 9.5),
])
pad14 = body.newObject("PartDesign::Pad", "Pad013")
pad14.Profile = sketch26
pad14.Length = 0.5

doc.recompute()
